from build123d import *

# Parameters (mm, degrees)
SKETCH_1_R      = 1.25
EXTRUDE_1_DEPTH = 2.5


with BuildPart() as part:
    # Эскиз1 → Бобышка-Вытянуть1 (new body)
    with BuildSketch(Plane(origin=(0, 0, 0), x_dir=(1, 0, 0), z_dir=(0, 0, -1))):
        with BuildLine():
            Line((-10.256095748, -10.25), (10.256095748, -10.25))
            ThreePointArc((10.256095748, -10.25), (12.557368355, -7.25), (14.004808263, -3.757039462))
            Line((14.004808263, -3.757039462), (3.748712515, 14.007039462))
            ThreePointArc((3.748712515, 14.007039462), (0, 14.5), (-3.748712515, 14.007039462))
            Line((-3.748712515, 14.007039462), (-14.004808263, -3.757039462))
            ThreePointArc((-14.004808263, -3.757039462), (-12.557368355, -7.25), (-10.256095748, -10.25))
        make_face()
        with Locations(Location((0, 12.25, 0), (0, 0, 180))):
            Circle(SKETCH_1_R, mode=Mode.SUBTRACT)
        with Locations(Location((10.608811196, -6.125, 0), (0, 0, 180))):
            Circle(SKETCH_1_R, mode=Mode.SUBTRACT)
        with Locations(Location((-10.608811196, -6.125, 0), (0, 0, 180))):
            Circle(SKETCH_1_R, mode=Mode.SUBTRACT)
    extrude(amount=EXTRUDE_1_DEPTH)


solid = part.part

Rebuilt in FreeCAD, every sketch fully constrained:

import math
import FreeCAD as App
import Part
import Sketcher
from FreeCAD import Vector
Q = App.Units.Quantity

doc = App.newDocument("Part")
body = doc.addObject("PartDesign::Body", "Body")

sketch1 = body.newObject("Sketcher::SketchObject", "Sketch")
sketch1.AttachmentSupport = (doc.getObject("XY_Plane"), [""])
sketch1.MapMode = "FlatFace"
sketch1.addGeometry([
    Part.LineSegment(Vector(-10.3, 10.2, 0), Vector(10.3, 10.2, 0)),
    Part.ArcOfCircle(Part.Circle(Vector(0, 0, 0), Vector(0, 0, 1), 14.5), math.radians(15), math.radians(45)),
    Part.LineSegment(Vector(14, 3.8, 0), Vector(3.7, -14, 0)),
    Part.ArcOfCircle(Part.Circle(Vector(0, 0, 0), Vector(0, 0, 1), 14.5), math.radians(-105), math.radians(-75)),
    Part.LineSegment(Vector(-3.7, -14, 0), Vector(-14, 3.8, 0)),
    Part.ArcOfCircle(Part.Circle(Vector(0, 0, 0), Vector(0, 0, 1), 14.5), math.radians(135), math.radians(165)),
    Part.Circle(Vector(-10.6, 6.1, 0), Vector(0, 0, 1), 1.2),
    Part.Circle(Vector(10.6, 6.1, 0), Vector(0, 0, 1), 1.2),
    Part.Circle(Vector(0, -12.2, 0), Vector(0, 0, 1), 1.2),
], False)
sketch1.addConstraint([
    Sketcher.Constraint("Coincident", 0, 2, 1, 2),
    Sketcher.Constraint("Coincident", 1, 1, 2, 1),
    Sketcher.Constraint("Coincident", 2, 2, 3, 2),
    Sketcher.Constraint("Coincident", 3, 1, 4, 1),
    Sketcher.Constraint("Coincident", 4, 2, 5, 2),
    Sketcher.Constraint("Coincident", 5, 1, 0, 1),
    Sketcher.Constraint("Horizontal", 0),
    Sketcher.Constraint("Coincident", 1, 3, -1, 1),
    Sketcher.Constraint("Coincident", 3, 3, -1, 1),
    Sketcher.Constraint("Coincident", 5, 3, -1, 1),
    Sketcher.Constraint("Equal", 1, 3),
    Sketcher.Constraint("Equal", 3, 5),
    Sketcher.Constraint("Equal", 6, 7),
    Sketcher.Constraint("Equal", 7, 8),
    Sketcher.Constraint("Symmetric", 6, 3, 7, 3, -2),
    Sketcher.Constraint("PointOnObject", 8, 3, -2),
    Sketcher.Constraint("Horizontal", 2, 2, 3, 1),
    Sketcher.Constraint("Horizontal", 1, 1, 4, 2),
    Sketcher.Constraint("Diameter", 6, 2.5),
    Sketcher.Constraint("Radius", 1, 14.5),
    Sketcher.Constraint("Angle", 2, Q("-120 deg")),
    Sketcher.Constraint("DistanceY", 8, 3, -1, 1, 12.25),
    Sketcher.Constraint("DistanceY", -1, 1, 0, 2, 10.25),
    Sketcher.Constraint("DistanceY", -1, 1, 6, 3, 6.125),
    Sketcher.Constraint("Distance", 2, 20.512191),
    Sketcher.Constraint("DistanceX", 6, 3, -1, 1, 10.608811),
])
pad1 = body.newObject("PartDesign::Pad", "Pad")
pad1.Profile = sketch1
pad1.Length = 2.5
pad1.Reversed = True

doc.recompute()
